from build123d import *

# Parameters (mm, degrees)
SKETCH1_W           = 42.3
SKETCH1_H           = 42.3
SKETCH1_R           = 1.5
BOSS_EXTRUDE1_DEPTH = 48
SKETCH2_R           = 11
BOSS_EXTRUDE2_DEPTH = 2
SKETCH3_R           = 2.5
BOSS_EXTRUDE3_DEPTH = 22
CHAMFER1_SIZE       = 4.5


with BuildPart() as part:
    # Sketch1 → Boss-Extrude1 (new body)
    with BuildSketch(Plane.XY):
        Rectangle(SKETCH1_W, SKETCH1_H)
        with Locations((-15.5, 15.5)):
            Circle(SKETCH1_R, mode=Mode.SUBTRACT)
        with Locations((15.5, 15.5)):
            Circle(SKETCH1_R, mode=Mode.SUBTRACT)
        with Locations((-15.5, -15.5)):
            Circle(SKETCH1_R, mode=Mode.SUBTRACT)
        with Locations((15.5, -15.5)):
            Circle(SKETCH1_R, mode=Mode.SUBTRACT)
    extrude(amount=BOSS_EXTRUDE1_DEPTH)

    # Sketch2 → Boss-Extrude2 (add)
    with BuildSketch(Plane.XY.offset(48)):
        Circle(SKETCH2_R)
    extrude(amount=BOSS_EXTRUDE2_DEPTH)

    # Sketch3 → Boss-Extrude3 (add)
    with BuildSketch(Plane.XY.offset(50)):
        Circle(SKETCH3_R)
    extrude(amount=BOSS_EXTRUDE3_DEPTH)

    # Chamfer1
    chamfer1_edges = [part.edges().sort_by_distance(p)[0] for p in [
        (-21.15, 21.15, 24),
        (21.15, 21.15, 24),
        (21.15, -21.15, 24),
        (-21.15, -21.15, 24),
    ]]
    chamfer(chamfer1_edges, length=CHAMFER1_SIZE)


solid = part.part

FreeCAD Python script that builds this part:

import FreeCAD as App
import Part
import Sketcher
Q = App.Units.Quantity


def edges_at(feature, points):
    """Names of the edges that pass closest to the given points."""
    edges = feature.Shape.Edges
    near = lambda p: min(range(len(edges)), key=lambda i: edges[i].distToShape(Part.Vertex(*p))[0])
    return sorted({f"Edge{near(p) + 1}" for p in points})


def add_polygon(sketch, points):
    """Adds a closed chain of lines whose ends are joined by coincident constraints."""
    first, n = sketch.GeometryCount, len(points)
    for a, b in zip(points, points[1:] + points[:1]):
        sketch.addGeometry(Part.LineSegment(App.Vector(*a, 0), App.Vector(*b, 0)), False)
    for i in range(n):
        sketch.addConstraint(Sketcher.Constraint("Coincident", first + i, 2, first + (i + 1) % n, 1))

doc = App.newDocument("Part")
params = doc.addObject("Spreadsheet::Sheet", "Params")
for row, (alias, value) in enumerate([
    ("sketch1_diameter", "3 mm"),
    ("sketch1_width", "42.3 mm"),
    ("pad1_length", "48 mm"),
    ("sketch2_diameter", "22 mm"),
    ("pad2_length", "2 mm"),
    ("sketch3_diameter", "5 mm"),
    ("pad3_length", "22 mm"),
    ("chamfer_size", "4.5 mm"),
], start=1):
    params.set(f"A{row}", alias)
    params.set(f"B{row}", "=" + value)
    params.setAlias(f"B{row}", alias)

body = doc.addObject("PartDesign::Body", "Body")

sketch1 = body.newObject("Sketcher::SketchObject", "Sketch")
sketch1.AttachmentSupport = (doc.getObject("XY_Plane"), [""])
sketch1.MapMode = "FlatFace"
add_polygon(sketch1, [(-21.15, 21.15), (-21.15, -21.15), (21.15, -21.15), (21.15, 21.15)])
sketch1.addGeometry(Part.Circle(App.Vector(-15.5, -15.5, 0), App.Vector(0, 0, 1), 1.5), False)
sketch1.addGeometry(Part.Circle(App.Vector(15.5, -15.5, 0), App.Vector(0, 0, 1), 1.5), False)
sketch1.addGeometry(Part.Circle(App.Vector(-15.5, 15.5, 0), App.Vector(0, 0, 1), 1.5), False)
sketch1.addGeometry(Part.Circle(App.Vector(15.5, 15.5, 0), App.Vector(0, 0, 1), 1.5), False)
sketch1.addConstraint([
    Sketcher.Constraint("Vertical", 0),
    Sketcher.Constraint("Horizontal", 1),
    Sketcher.Constraint("Vertical", 2),
    Sketcher.Constraint("Horizontal", 3),
    Sketcher.Constraint("Equal", 4, 5),
    Sketcher.Constraint("Equal", 5, 6),
    Sketcher.Constraint("Equal", 6, 7),
    Sketcher.Constraint("Symmetric", 5, 3, 6, 3, -1, 1),
    Sketcher.Constraint("Symmetric", 4, 3, 7, 3, -1, 1),
    Sketcher.Constraint("Symmetric", 0, 2, 2, 2, -1, 1),
    Sketcher.Constraint("Symmetric", 4, 3, 5, 3, -2),
    Sketcher.Constraint("Equal", 3, 0),
    Sketcher.Constraint("Diameter", 4, Q("3 mm")),
    Sketcher.Constraint("DistanceX", 1, 1, 1, 2, Q("42.3 mm")),
    Sketcher.Constraint("DistanceX", 4, 3, 5, 3, Q("31 mm")),
    Sketcher.Constraint("DistanceY", 4, 3, 6, 3, Q("31 mm")),
])
sketch1.setExpression("Constraints[16]", "Params.sketch1_diameter")
sketch1.setExpression("Constraints[17]", "Params.sketch1_width")
pad1 = body.newObject("PartDesign::Pad", "Pad")
pad1.Profile = sketch1
pad1.setExpression("Length", "Params.pad1_length")

sketch2 = body.newObject("Sketcher::SketchObject", "Sketch001")
sketch2.AttachmentSupport = (doc.getObject("XY_Plane"), [""])
sketch2.MapMode = "FlatFace"
sketch2.AttachmentOffset = App.Placement(App.Vector(0, 0, 48), App.Rotation())
sketch2.addGeometry(Part.Circle(App.Vector(0, 0, 0), App.Vector(0, 0, 1), 11), False)
sketch2.addConstraint([
    Sketcher.Constraint("Coincident", 0, 3, -1, 1),
    Sketcher.Constraint("Diameter", 0, Q("22 mm")),
])
sketch2.setExpression("Constraints[1]", "Params.sketch2_diameter")
pad2 = body.newObject("PartDesign::Pad", "Pad001")
pad2.Profile = sketch2
pad2.setExpression("Length", "Params.pad2_length")

sketch3 = body.newObject("Sketcher::SketchObject", "Sketch002")
sketch3.AttachmentSupport = (doc.getObject("XY_Plane"), [""])
sketch3.MapMode = "FlatFace"
sketch3.AttachmentOffset = App.Placement(App.Vector(0, 0, 50), App.Rotation())
sketch3.addGeometry(Part.Circle(App.Vector(0, 0, 0), App.Vector(0, 0, 1), 2.5), False)
sketch3.addConstraint([
    Sketcher.Constraint("Coincident", 0, 3, -1, 1),
    Sketcher.Constraint("Diameter", 0, Q("5 mm")),
])
sketch3.setExpression("Constraints[1]", "Params.sketch3_diameter")
pad3 = body.newObject("PartDesign::Pad", "Pad002")
pad3.Profile = sketch3
pad3.setExpression("Length", "Params.pad3_length")
doc.recompute()

chamfer = body.newObject("PartDesign::Chamfer", "Chamfer")
chamfer.Base = (pad3, edges_at(pad3, [
    (-21.15, 21.15, 24),
    (21.15, 21.15, 24),
    (21.15, -21.15, 24),
    (-21.15, -21.15, 24),
]))
chamfer.setExpression("Size", "Params.chamfer_size")

doc.recompute()
